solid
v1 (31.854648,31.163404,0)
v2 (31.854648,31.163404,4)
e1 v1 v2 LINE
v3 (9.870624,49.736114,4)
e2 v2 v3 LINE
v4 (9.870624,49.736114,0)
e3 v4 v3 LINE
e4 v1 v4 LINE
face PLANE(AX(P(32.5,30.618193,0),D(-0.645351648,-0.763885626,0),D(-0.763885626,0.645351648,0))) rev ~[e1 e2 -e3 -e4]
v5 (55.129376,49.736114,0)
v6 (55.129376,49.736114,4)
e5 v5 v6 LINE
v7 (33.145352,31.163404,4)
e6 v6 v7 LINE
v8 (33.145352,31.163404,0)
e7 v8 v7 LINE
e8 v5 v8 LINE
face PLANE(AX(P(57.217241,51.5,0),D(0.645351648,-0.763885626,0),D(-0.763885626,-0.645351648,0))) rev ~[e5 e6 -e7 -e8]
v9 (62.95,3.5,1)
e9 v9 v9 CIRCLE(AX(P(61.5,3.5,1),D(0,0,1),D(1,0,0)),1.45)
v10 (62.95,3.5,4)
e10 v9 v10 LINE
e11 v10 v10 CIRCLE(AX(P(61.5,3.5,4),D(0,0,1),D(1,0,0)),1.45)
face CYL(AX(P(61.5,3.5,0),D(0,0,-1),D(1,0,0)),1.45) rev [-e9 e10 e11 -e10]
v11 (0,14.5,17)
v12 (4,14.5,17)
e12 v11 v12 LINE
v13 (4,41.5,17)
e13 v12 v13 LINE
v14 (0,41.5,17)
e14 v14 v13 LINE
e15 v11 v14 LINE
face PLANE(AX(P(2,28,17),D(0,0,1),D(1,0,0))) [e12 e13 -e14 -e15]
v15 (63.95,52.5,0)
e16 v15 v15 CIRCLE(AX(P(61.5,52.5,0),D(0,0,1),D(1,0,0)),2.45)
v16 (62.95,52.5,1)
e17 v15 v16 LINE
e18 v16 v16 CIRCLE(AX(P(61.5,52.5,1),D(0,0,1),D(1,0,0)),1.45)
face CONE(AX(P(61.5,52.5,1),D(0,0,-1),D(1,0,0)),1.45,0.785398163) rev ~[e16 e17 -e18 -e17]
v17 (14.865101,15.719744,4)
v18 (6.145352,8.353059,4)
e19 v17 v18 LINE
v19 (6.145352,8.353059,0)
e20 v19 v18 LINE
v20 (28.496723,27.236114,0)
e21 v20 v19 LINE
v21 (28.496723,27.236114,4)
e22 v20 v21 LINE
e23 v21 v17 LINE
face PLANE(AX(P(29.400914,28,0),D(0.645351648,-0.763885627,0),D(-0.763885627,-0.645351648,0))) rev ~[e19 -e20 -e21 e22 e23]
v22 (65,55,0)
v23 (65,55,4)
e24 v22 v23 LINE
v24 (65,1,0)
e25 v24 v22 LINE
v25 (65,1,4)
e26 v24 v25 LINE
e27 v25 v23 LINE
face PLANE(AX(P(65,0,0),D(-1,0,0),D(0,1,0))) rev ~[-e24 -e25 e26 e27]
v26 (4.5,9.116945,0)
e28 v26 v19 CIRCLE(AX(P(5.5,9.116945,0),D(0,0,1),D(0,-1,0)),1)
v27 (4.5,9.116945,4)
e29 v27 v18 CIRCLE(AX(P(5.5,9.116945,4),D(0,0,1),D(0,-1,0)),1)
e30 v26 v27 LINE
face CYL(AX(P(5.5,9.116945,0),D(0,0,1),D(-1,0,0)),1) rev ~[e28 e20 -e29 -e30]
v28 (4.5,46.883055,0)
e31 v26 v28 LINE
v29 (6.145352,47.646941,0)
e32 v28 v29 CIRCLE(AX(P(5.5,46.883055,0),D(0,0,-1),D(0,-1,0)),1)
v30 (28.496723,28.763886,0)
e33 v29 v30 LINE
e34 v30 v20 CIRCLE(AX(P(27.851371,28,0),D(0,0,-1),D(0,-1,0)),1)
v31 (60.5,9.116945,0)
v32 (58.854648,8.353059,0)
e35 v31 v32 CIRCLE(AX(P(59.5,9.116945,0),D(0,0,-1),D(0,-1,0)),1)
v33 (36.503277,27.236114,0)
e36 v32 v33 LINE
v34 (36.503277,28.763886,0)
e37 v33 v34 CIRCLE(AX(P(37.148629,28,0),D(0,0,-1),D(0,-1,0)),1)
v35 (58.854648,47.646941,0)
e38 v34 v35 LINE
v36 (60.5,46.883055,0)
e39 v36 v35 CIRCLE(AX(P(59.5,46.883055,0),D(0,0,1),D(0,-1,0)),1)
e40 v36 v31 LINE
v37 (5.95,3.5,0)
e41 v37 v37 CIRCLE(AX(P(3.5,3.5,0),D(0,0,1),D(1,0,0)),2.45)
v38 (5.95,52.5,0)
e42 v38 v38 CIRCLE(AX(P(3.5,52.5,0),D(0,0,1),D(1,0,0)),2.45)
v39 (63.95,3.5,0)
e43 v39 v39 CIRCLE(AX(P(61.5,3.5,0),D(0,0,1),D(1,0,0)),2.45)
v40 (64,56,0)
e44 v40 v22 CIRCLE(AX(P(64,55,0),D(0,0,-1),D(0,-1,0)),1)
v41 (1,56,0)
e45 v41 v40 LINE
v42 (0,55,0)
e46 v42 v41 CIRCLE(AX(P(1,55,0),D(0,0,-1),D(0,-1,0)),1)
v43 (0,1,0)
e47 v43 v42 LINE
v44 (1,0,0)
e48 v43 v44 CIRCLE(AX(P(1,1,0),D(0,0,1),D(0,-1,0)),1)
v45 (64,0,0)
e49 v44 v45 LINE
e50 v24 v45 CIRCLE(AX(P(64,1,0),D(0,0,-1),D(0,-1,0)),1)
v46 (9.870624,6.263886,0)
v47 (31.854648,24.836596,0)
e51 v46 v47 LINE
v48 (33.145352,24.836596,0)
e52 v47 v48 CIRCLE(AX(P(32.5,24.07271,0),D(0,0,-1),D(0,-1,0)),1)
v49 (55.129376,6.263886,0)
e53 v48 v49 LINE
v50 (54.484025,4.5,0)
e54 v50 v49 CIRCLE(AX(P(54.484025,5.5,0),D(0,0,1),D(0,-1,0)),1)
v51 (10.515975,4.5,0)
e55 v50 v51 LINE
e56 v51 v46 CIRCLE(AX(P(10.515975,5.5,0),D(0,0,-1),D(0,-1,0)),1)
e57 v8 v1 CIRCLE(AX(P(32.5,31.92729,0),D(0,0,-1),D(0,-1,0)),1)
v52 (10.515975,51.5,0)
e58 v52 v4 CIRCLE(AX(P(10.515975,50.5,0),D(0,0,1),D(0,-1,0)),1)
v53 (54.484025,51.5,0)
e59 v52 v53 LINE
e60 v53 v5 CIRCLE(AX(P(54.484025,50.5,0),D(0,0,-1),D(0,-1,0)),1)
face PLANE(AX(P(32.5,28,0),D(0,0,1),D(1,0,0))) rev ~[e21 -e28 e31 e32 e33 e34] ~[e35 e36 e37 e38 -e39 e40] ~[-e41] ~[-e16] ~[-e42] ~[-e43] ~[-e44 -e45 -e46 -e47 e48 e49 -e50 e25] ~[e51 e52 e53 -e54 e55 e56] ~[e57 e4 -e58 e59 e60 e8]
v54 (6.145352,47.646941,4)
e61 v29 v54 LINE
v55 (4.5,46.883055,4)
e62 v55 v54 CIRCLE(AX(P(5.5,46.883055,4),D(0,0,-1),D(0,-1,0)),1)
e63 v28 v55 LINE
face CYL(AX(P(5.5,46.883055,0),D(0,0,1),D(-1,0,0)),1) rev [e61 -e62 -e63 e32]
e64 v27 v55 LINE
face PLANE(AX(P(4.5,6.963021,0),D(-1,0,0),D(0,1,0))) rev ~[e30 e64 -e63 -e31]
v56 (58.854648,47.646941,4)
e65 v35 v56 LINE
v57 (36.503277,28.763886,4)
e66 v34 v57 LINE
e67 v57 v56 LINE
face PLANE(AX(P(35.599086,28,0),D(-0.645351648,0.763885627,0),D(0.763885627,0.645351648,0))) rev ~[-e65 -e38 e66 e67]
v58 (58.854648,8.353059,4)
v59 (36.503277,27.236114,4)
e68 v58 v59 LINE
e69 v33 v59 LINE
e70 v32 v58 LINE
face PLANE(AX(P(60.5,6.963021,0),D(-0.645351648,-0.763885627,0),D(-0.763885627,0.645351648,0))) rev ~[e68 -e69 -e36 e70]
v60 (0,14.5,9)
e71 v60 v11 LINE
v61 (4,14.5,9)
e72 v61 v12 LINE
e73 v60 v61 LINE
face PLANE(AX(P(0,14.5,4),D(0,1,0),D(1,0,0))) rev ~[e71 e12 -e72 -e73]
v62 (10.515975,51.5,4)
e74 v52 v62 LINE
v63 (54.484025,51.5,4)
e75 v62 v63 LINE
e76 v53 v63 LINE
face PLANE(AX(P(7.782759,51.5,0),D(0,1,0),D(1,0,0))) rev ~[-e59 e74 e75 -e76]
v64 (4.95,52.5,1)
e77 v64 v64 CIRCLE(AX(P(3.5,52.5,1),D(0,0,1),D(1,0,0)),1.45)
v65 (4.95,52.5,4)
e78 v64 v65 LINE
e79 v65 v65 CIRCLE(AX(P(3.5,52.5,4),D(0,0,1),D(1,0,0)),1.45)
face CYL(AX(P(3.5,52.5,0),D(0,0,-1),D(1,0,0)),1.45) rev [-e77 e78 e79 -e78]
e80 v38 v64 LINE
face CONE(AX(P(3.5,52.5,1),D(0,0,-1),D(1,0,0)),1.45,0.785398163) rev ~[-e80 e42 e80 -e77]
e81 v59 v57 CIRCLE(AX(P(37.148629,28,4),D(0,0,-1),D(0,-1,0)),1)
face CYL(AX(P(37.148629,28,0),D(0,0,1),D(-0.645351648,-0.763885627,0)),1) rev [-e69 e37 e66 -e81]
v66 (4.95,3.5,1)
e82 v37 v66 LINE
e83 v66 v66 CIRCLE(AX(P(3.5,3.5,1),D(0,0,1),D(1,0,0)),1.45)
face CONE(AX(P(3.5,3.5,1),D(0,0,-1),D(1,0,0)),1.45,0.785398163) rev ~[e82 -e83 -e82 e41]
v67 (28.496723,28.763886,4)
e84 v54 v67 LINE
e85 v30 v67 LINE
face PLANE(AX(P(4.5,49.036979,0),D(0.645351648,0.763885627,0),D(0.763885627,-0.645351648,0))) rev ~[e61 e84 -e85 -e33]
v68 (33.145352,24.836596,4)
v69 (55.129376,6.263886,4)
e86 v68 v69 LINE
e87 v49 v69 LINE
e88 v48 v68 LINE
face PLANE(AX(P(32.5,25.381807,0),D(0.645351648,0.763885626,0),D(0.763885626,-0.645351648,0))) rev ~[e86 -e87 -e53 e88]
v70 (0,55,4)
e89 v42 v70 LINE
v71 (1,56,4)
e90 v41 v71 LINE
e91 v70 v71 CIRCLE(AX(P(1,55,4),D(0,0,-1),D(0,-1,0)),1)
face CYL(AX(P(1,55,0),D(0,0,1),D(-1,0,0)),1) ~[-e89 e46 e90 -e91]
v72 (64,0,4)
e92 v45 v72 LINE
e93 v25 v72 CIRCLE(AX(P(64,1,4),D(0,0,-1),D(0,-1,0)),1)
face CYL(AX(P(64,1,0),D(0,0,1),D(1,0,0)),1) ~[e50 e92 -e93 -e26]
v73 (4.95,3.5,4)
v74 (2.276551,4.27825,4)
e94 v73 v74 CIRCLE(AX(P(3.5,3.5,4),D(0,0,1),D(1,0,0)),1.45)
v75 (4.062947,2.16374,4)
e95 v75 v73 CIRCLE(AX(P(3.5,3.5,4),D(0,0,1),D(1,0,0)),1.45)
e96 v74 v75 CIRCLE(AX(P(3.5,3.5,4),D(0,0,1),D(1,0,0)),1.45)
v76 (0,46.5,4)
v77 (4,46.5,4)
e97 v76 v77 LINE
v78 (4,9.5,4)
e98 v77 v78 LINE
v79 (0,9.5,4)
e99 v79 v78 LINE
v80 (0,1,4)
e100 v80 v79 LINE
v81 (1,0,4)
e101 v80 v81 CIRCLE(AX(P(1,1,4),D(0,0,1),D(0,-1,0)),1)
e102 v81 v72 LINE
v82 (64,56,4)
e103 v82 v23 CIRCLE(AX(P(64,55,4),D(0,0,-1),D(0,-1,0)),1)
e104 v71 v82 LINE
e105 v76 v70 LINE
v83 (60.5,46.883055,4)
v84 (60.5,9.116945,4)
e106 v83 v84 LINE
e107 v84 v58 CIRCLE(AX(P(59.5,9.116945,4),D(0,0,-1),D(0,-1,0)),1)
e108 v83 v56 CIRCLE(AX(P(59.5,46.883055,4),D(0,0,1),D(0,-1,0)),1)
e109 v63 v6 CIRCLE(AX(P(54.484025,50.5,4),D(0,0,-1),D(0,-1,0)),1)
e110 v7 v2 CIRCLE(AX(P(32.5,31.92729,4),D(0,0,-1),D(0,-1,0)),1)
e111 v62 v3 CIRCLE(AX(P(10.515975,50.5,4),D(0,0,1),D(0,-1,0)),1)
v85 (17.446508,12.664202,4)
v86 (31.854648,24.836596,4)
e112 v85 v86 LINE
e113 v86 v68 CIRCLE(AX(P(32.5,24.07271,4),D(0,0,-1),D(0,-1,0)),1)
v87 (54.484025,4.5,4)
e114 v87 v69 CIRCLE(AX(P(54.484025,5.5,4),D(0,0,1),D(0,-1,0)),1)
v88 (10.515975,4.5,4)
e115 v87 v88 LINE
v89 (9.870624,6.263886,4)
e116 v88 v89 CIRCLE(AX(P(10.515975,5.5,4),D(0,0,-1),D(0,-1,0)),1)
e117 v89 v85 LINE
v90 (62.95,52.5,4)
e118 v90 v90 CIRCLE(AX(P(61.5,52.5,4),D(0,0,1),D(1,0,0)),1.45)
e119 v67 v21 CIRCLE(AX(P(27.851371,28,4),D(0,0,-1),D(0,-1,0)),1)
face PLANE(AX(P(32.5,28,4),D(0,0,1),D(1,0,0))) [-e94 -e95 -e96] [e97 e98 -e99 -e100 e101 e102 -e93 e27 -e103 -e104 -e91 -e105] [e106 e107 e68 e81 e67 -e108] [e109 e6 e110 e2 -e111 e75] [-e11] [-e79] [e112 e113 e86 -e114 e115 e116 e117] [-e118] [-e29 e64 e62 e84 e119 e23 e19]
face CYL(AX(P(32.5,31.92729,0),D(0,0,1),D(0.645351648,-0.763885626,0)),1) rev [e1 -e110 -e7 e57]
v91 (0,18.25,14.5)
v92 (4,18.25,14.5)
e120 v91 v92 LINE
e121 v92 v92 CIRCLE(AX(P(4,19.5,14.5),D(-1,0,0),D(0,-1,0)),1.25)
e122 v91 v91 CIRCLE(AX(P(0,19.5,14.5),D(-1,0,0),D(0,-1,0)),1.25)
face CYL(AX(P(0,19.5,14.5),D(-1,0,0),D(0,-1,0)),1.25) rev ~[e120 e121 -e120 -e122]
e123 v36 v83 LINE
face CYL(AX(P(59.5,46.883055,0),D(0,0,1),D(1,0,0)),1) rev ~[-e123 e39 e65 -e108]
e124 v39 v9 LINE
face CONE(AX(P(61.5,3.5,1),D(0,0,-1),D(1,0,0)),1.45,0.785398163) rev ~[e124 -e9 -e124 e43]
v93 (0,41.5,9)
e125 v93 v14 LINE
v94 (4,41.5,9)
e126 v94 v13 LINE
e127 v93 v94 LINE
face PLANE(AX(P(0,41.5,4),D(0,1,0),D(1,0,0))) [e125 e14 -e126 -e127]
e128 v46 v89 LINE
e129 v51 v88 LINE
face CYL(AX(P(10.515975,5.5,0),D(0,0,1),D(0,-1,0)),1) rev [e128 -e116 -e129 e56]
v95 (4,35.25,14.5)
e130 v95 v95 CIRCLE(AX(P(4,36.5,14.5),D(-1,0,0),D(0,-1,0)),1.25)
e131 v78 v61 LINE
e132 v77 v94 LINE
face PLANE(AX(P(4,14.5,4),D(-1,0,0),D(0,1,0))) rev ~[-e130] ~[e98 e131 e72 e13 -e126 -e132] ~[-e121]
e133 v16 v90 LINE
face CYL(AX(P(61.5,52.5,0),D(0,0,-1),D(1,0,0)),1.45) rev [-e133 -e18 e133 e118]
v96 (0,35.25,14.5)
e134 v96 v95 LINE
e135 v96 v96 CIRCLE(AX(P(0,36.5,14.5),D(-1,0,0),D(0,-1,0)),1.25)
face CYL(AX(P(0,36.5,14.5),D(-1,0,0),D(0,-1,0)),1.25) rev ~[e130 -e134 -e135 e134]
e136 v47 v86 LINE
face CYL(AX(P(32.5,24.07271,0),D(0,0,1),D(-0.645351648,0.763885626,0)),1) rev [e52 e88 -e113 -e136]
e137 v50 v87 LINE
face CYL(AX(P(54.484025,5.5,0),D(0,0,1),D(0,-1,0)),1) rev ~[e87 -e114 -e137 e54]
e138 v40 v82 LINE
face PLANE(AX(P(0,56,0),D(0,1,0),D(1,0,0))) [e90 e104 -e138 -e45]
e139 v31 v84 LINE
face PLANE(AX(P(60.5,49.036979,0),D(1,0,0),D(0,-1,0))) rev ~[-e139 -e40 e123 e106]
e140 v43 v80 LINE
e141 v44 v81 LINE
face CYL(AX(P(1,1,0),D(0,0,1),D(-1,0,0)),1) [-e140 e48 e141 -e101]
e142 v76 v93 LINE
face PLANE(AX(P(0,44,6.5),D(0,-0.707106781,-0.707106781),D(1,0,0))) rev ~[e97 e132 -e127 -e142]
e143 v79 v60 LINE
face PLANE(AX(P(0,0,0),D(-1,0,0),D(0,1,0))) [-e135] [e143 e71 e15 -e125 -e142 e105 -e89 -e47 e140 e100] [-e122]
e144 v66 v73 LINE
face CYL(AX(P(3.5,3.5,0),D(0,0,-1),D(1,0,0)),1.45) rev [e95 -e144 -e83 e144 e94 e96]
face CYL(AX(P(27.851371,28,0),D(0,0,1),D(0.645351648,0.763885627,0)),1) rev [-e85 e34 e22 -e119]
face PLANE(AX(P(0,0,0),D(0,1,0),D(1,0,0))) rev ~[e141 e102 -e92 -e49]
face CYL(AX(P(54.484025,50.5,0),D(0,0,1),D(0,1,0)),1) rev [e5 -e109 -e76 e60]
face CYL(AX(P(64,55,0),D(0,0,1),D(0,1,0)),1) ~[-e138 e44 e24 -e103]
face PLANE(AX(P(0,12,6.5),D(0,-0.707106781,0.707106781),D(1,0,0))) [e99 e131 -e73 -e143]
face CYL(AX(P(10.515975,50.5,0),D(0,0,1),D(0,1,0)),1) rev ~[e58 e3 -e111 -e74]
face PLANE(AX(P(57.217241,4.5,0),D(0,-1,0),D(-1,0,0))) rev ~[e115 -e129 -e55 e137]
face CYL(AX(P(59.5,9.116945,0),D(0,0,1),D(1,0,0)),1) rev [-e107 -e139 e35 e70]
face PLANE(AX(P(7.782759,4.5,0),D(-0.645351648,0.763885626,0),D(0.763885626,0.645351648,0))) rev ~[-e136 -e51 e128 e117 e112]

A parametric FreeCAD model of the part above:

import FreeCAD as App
import Part
import Sketcher
from FreeCAD import Vector
Q = App.Units.Quantity


def edges_at(feature, points):
    """Names of the edges that pass closest to the given points."""
    edges = feature.Shape.Edges
    near = lambda p: min(range(len(edges)), key=lambda i: edges[i].distToShape(Part.Vertex(*p))[0])
    return sorted({f"Edge{near(p) + 1}" for p in points})

doc = App.newDocument("Part")
body = doc.addObject("PartDesign::Body", "Body")

sketch1 = body.newObject("Sketcher::SketchObject", "Sketch")
sketch1.AttachmentSupport = (doc.getObject("XY_Plane"), [""])
sketch1.MapMode = "FlatFace"
sketch1.addGeometry([
    Part.LineSegment(Vector(0, 56, 0), Vector(0, 0, 0)),
    Part.LineSegment(Vector(0, 0, 0), Vector(65, 0, 0)),
    Part.LineSegment(Vector(65, 0, 0), Vector(65, 56, 0)),
    Part.LineSegment(Vector(65, 56, 0), Vector(0, 56, 0)),
    Part.Circle(Vector(3.5, 3.5, 0), Vector(0, 0, 1), 1.4),
    Part.LineSegment(Vector(32.5, 25.4, 0), Vector(57.2, 4.5, 0)),
    Part.LineSegment(Vector(57.2, 4.5, 0), Vector(7.8, 4.5, 0)),
    Part.LineSegment(Vector(7.8, 4.5, 0), Vector(32.5, 25.4, 0)),
    Part.Circle(Vector(61.5, 3.5, 0), Vector(0, 0, 1), 1.4),
    Part.LineSegment(Vector(29.4, 28, 0), Vector(4.5, 7, 0)),
    Part.LineSegment(Vector(4.5, 7, 0), Vector(4.5, 49, 0)),
    Part.LineSegment(Vector(4.5, 49, 0), Vector(29.4, 28, 0)),
    Part.Circle(Vector(3.5, 52.5, 0), Vector(0, 0, 1), 1.4),
    Part.LineSegment(Vector(35.6, 28, 0), Vector(60.5, 49, 0)),
    Part.LineSegment(Vector(60.5, 49, 0), Vector(60.5, 7, 0)),
    Part.LineSegment(Vector(60.5, 7, 0), Vector(35.6, 28, 0)),
    Part.LineSegment(Vector(32.5, 30.6, 0), Vector(7.8, 51.5, 0)),
    Part.LineSegment(Vector(7.8, 51.5, 0), Vector(57.2, 51.5, 0)),
    Part.LineSegment(Vector(57.2, 51.5, 0), Vector(32.5, 30.6, 0)),
    Part.Circle(Vector(61.5, 52.5, 0), Vector(0, 0, 1), 1.4),
], False)
sketch1.addConstraint([
    Sketcher.Constraint("Coincident", 0, 2, 1, 1),
    Sketcher.Constraint("Coincident", 1, 2, 2, 1),
    Sketcher.Constraint("Coincident", 2, 2, 3, 1),
    Sketcher.Constraint("Coincident", 3, 2, 0, 1),
    Sketcher.Constraint("Coincident", 5, 2, 6, 1),
    Sketcher.Constraint("Coincident", 6, 2, 7, 1),
    Sketcher.Constraint("Coincident", 7, 2, 5, 1),
    Sketcher.Constraint("Coincident", 9, 2, 10, 1),
    Sketcher.Constraint("Coincident", 10, 2, 11, 1),
    Sketcher.Constraint("Coincident", 11, 2, 9, 1),
    Sketcher.Constraint("Coincident", 13, 2, 14, 1),
    Sketcher.Constraint("Coincident", 14, 2, 15, 1),
    Sketcher.Constraint("Coincident", 15, 2, 13, 1),
    Sketcher.Constraint("Coincident", 16, 2, 17, 1),
    Sketcher.Constraint("Coincident", 17, 2, 18, 1),
    Sketcher.Constraint("Coincident", 18, 2, 16, 1),
    Sketcher.Constraint("Vertical", 0),
    Sketcher.Constraint("Horizontal", 1),
    Sketcher.Constraint("Vertical", 2),
    Sketcher.Constraint("Horizontal", 3),
    Sketcher.Constraint("Horizontal", 6),
    Sketcher.Constraint("Vertical", 10),
    Sketcher.Constraint("Vertical", 14),
    Sketcher.Constraint("Horizontal", 17),
    Sketcher.Constraint("Coincident", 0, 2, -1, 1),
    Sketcher.Constraint("Equal", 4, 8),
    Sketcher.Constraint("Equal", 8, 12),
    Sketcher.Constraint("Equal", 12, 19),
    Sketcher.Constraint("Parallel", 7, 9),
    Sketcher.Constraint("Parallel", 5, 11),
    Sketcher.Constraint("Parallel", 9, 13),
    Sketcher.Constraint("Parallel", 11, 15),
    Sketcher.Constraint("Parallel", 15, 16),
    Sketcher.Constraint("Parallel", 13, 18),
    Sketcher.Constraint("Horizontal", 4, 3, 8, 3),
    Sketcher.Constraint("Horizontal", 12, 3, 19, 3),
    Sketcher.Constraint("Horizontal", 10, 2, 13, 2),
    Sketcher.Constraint("Horizontal", 9, 2, 14, 2),
    Sketcher.Constraint("Horizontal", 11, 2, 15, 2),
    Sketcher.Constraint("Vertical", 4, 3, 12, 3),
    Sketcher.Constraint("Vertical", 8, 3, 19, 3),
    Sketcher.Constraint("Vertical", 6, 2, 16, 2),
    Sketcher.Constraint("Vertical", 5, 2, 17, 2),
    Sketcher.Constraint("Diameter", 4, Q("2.9 mm")),
    Sketcher.Constraint("DistanceX", 1, 1, 1, 2, Q("65 mm")),
    Sketcher.Constraint("DistanceY", 0, 2, 0, 1, Q("56 mm")),
    Sketcher.Constraint("DistanceY", -1, 1, 11, 2, Q("28 mm")),
    Sketcher.Constraint("DistanceX", 4, 3, 8, 3, Q("58 mm")),
    Sketcher.Constraint("DistanceY", 4, 3, 12, 3, Q("49 mm")),
    Sketcher.Constraint("DistanceY", 8, 3, 5, 2, Q("1 mm")),
    Sketcher.Constraint("DistanceX", 4, 3, 7, 2, Q("29 mm")),
    Sketcher.Constraint("DistanceX", 4, 3, 9, 2, Q("1 mm")),
    Sketcher.Constraint("DistanceX", 13, 2, 19, 3, Q("1 mm")),
    Sketcher.Constraint("DistanceY", 16, 2, 12, 3, Q("1 mm")),
    Sketcher.Constraint("DistanceX", -1, 1, 4, 3, Q("3.5 mm")),
    Sketcher.Constraint("DistanceY", -1, 1, 4, 3, Q("3.5 mm")),
    Sketcher.Constraint("Distance", 9, Q("32.597699 mm")),
    Sketcher.Constraint("DistanceY", 10, 1, 10, 2, Q("42.073958 mm")),
    Sketcher.Constraint("DistanceX", 6, 2, 6, 1, Q("49.434482 mm")),
])
pad1 = body.newObject("PartDesign::Pad", "Pad")
pad1.Profile = sketch1
pad1.Length = 4

sketch2 = body.newObject("Sketcher::SketchObject", "Sketch001")
sketch2.Placement = App.Placement(Vector(-1.55844, 1.844684, 0), App.Rotation(Vector(-0.763885609, -0.645351669, 0), Vector(0, 0, 1), Vector(-0.645351669, 0.763885609, 0), "ZXY"))
sketch2.addGeometry([
    Part.Circle(Vector(-21.5, 5.3, 0), Vector(0, 0, 1), 1.2),
    Part.Circle(Vector(-4.5, 5.3, 0), Vector(0, 0, 1), 1.2),
], False)
sketch2.addConstraint([
    Sketcher.Constraint("Equal", 0, 1),
    Sketcher.Constraint("Horizontal", 0, 3, 1, 3),
    Sketcher.Constraint("Diameter", 0, Q("2.5 mm")),
    Sketcher.Constraint("DistanceX", 0, 3, 1, 3, Q("17 mm")),
    Sketcher.Constraint("DistanceX", 0, 3, -1, 1, Q("21.5 mm")),
    Sketcher.Constraint("DistanceY", -1, 1, 0, 3, Q("5.25 mm")),
])
pocket1 = body.newObject("PartDesign::Pocket", "Pocket")
pocket1.Profile = sketch2
pocket1.Length = 5

sketch3 = body.newObject("Sketcher::SketchObject", "Sketch002")
sketch3.AttachmentSupport = (doc.getObject("XY_Plane"), [""])
sketch3.MapMode = "FlatFace"
sketch3.AttachmentOffset = App.Placement(Vector(0, 0, 4), App.Rotation())
sketch3.addGeometry([
    Part.LineSegment(Vector(0, 41.5, 0), Vector(0, 14.5, 0)),
    Part.LineSegment(Vector(0, 14.5, 0), Vector(4, 14.5, 0)),
    Part.LineSegment(Vector(4, 14.5, 0), Vector(4, 41.5, 0)),
    Part.LineSegment(Vector(4, 41.5, 0), Vector(0, 41.5, 0)),
], False)
sketch3.addConstraint([
    Sketcher.Constraint("Coincident", 0, 2, 1, 1),
    Sketcher.Constraint("Coincident", 1, 2, 2, 1),
    Sketcher.Constraint("Coincident", 2, 2, 3, 1),
    Sketcher.Constraint("Coincident", 3, 2, 0, 1),
    Sketcher.Constraint("Vertical", 0),
    Sketcher.Constraint("Horizontal", 1),
    Sketcher.Constraint("Vertical", 2),
    Sketcher.Constraint("Horizontal", 3),
    Sketcher.Constraint("PointOnObject", 0, 2, -2),
    Sketcher.Constraint("DistanceX", 1, 1, 1, 2, Q("4 mm")),
    Sketcher.Constraint("DistanceY", 0, 2, 0, 1, Q("27 mm")),
    Sketcher.Constraint("DistanceY", -1, 1, 0, 2, Q("14.5 mm")),
])
pad2 = body.newObject("PartDesign::Pad", "Pad001")
pad2.Profile = sketch3
pad2.Length = 13

sketch4 = body.newObject("Sketcher::SketchObject", "Sketch003")
sketch4.AttachmentSupport = (doc.getObject("YZ_Plane"), [""])
sketch4.MapMode = "FlatFace"
sketch4.addGeometry([
    Part.Circle(Vector(36.5, 14.5, 0), Vector(0, 0, 1), 1.2),
    Part.Circle(Vector(19.5, 14.5, 0), Vector(0, 0, 1), 1.2),
], False)
sketch4.addConstraint([
    Sketcher.Constraint("Equal", 0, 1),
    Sketcher.Constraint("Horizontal", 0, 3, 1, 3),
    Sketcher.Constraint("Diameter", 0, Q("2.5 mm")),
    Sketcher.Constraint("DistanceX", 1, 3, 0, 3, Q("17 mm")),
    Sketcher.Constraint("DistanceX", -1, 1, 0, 3, Q("36.5 mm")),
    Sketcher.Constraint("DistanceY", -1, 1, 0, 3, Q("14.5 mm")),
])
pocket2 = body.newObject("PartDesign::Pocket", "Pocket001")
pocket2.Profile = sketch4
pocket2.Type = "ThroughAll"
pocket2.Reversed = True
doc.recompute()

chamfer = body.newObject("PartDesign::Chamfer", "Chamfer")
chamfer.Base = (pocket2, edges_at(pocket2, [(2, 41.5, 4), (2, 14.5, 4)]))
chamfer.Size = 5
doc.recompute()

fillet = body.newObject("PartDesign::Fillet", "Fillet")
fillet.Base = (chamfer, edges_at(chamfer, [
    (7.783, 51.5, 2),
    (35.599, 28, 2),
    (60.5, 6.963, 2),
    (4.5, 6.963, 2),
    (29.401, 28, 2),
    (7.783, 4.5, 2),
    (57.217, 4.5, 2),
    (57.217, 51.5, 2),
    (4.5, 49.037, 2),
    (4.95, 52.5, 2),
    (32.5, 25.382, 2),
    (32.5, 30.618, 2),
    (60.5, 49.037, 2),
    (0, 56, 2),
    (65, 56, 2),
    (65, 0, 2),
    (0, 0, 2),
]))
fillet.Radius = 1
doc.recompute()

chamfer2 = body.newObject("PartDesign::Chamfer", "Chamfer001")
chamfer2.Base = (fillet, edges_at(fillet, [
    (2.05, 52.5, 0),
    (2.05, 3.5, 0),
    (60.05, 3.5, 0),
    (60.05, 52.5, 0),
]))
chamfer2.Size = 1

doc.recompute()
